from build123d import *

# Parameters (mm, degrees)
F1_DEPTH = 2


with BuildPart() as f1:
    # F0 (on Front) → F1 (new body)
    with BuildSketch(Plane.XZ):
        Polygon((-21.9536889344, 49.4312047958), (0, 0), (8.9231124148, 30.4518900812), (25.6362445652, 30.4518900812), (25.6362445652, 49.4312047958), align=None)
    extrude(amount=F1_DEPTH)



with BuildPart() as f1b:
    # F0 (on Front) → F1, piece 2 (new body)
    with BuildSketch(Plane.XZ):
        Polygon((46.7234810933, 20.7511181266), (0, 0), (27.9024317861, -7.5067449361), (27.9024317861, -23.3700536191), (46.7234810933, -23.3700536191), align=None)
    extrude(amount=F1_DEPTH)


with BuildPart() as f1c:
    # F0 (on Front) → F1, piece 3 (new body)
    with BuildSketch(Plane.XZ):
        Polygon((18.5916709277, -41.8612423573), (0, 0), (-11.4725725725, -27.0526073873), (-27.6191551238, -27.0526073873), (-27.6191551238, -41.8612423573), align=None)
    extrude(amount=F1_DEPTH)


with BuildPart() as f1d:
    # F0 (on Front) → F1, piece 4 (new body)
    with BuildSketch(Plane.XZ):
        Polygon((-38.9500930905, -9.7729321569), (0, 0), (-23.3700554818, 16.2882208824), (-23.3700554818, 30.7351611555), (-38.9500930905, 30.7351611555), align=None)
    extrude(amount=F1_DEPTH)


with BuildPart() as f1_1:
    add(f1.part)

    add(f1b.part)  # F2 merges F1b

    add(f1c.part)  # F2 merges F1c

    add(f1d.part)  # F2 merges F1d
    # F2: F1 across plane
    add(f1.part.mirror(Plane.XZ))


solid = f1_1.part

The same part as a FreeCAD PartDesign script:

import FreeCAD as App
import Part
import Sketcher
Q = App.Units.Quantity


def add_polygon(sketch, points):
    """Adds a closed chain of lines whose ends are joined by coincident constraints."""
    first, n = sketch.GeometryCount, len(points)
    for a, b in zip(points, points[1:] + points[:1]):
        sketch.addGeometry(Part.LineSegment(App.Vector(*a, 0), App.Vector(*b, 0)), False)
    for i in range(n):
        sketch.addConstraint(Sketcher.Constraint("Coincident", first + i, 2, first + (i + 1) % n, 1))

doc = App.newDocument("Part")
body = doc.addObject("PartDesign::Body", "Body")

# Sketch on XZ plane
sketch1 = body.newObject("Sketcher::SketchObject", "Sketch")
sketch1.AttachmentSupport = (doc.getObject("XZ_Plane"), [""])
sketch1.MapMode = "FlatFace"
add_polygon(sketch1, [(-21.953689, 49.431205), (0, 0), (8.923112, 30.45189), (25.636245, 30.45189), (25.636245, 49.431205)])  # lines 0-4
sketch1.addConstraint(Sketcher.Constraint("Horizontal", 2))
sketch1.addConstraint(Sketcher.Constraint("Vertical", 3))
sketch1.addConstraint(Sketcher.Constraint("Horizontal", 4))
sketch1.addConstraint(Sketcher.Constraint("Coincident", 0, 2, -1, 1))
sketch1.addConstraint(Sketcher.Constraint("DistanceX", 4, 2, 1, 2, Q("30.876801 mm")))
sketch1.addConstraint(Sketcher.Constraint("Distance", 1, Q("31.732311 mm")))
sketch1.addConstraint(Sketcher.Constraint("DistanceX", 2, 1, 2, 2, Q("16.713132 mm")))
sketch1.addConstraint(Sketcher.Constraint("DistanceY", 3, 1, 3, 2, Q("18.979315 mm")))
sketch1.addConstraint(Sketcher.Constraint("DistanceY", -1, 1, 1, 2, Q("30.45189 mm")))
pad1 = body.newObject("PartDesign::Pad", "Pad")
pad1.Profile = sketch1
pad1.Length = 2
body2 = doc.addObject("PartDesign::Body", "Body001")

# Sketch on XZ plane
sketch2 = body2.newObject("Sketcher::SketchObject", "Sketch001")
sketch2.AttachmentSupport = (doc.getObject("XZ_Plane001"), [""])
sketch2.MapMode = "FlatFace"
add_polygon(sketch2, [(46.723481, 20.751118), (0, 0), (27.902432, -7.506745), (27.902432, -23.370054), (46.723481, -23.370054)])  # lines 0-4
sketch2.addConstraint(Sketcher.Constraint("Vertical", 2))
sketch2.addConstraint(Sketcher.Constraint("Horizontal", 3))
sketch2.addConstraint(Sketcher.Constraint("Vertical", 4))
sketch2.addConstraint(Sketcher.Constraint("Coincident", 0, 2, -1, 1))
sketch2.addConstraint(Sketcher.Constraint("DistanceX", 3, 1, 3, 2, Q("18.821049 mm")))
sketch2.addConstraint(Sketcher.Constraint("DistanceY", 2, 2, 2, 1, Q("15.863309 mm")))
sketch2.addConstraint(Sketcher.Constraint("DistanceY", 4, 1, 4, 2, Q("44.121172 mm")))
sketch2.addConstraint(Sketcher.Constraint("DistanceX", -1, 1, 1, 2, Q("27.902432 mm")))
sketch2.addConstraint(Sketcher.Constraint("DistanceY", -1, 1, 4, 2, Q("20.751118 mm")))
pad2 = body2.newObject("PartDesign::Pad", "Pad001")
pad2.Profile = sketch2
pad2.Length = 2
body3 = doc.addObject("PartDesign::Body", "Body002")

# Sketch on XZ plane
sketch3 = body3.newObject("Sketcher::SketchObject", "Sketch002")
sketch3.AttachmentSupport = (doc.getObject("XZ_Plane002"), [""])
sketch3.MapMode = "FlatFace"
add_polygon(sketch3, [(18.591671, -41.861242), (0, 0), (-11.472573, -27.052607), (-27.619155, -27.052607), (-27.619155, -41.861242)])  # lines 0-4
sketch3.addConstraint(Sketcher.Constraint("Horizontal", 2))
sketch3.addConstraint(Sketcher.Constraint("Vertical", 3))
sketch3.addConstraint(Sketcher.Constraint("Horizontal", 4))
sketch3.addConstraint(Sketcher.Constraint("Coincident", 0, 2, -1, 1))
sketch3.addConstraint(Sketcher.Constraint("Distance", 0, Q("45.804081 mm")))
sketch3.addConstraint(Sketcher.Constraint("Distance", 1, Q("29.384749 mm")))
sketch3.addConstraint(Sketcher.Constraint("DistanceX", 2, 2, 2, 1, Q("16.146583 mm")))
sketch3.addConstraint(Sketcher.Constraint("DistanceX", 4, 1, 4, 2, Q("46.210826 mm")))
sketch3.addConstraint(Sketcher.Constraint("DistanceY", 3, 2, 3, 1, Q("14.808635 mm")))
pad3 = body3.newObject("PartDesign::Pad", "Pad002")
pad3.Profile = sketch3
pad3.Length = 2
body4 = doc.addObject("PartDesign::Body", "Body003")

# Sketch on XZ plane
sketch4 = body4.newObject("Sketcher::SketchObject", "Sketch003")
sketch4.AttachmentSupport = (doc.getObject("XZ_Plane003"), [""])
sketch4.MapMode = "FlatFace"
add_polygon(sketch4, [(-38.950093, -9.772932), (0, 0), (-23.370055, 16.288221), (-23.370055, 30.735161), (-38.950093, 30.735161)])  # lines 0-4
sketch4.addConstraint(Sketcher.Constraint("Vertical", 2))
sketch4.addConstraint(Sketcher.Constraint("Horizontal", 3))
sketch4.addConstraint(Sketcher.Constraint("Vertical", 4))
sketch4.addConstraint(Sketcher.Constraint("Coincident", 0, 2, -1, 1))
sketch4.addConstraint(Sketcher.Constraint("DistanceY", 2, 1, 2, 2, Q("14.44694 mm")))
sketch4.addConstraint(Sketcher.Constraint("Distance", 0, Q("40.15744 mm")))
sketch4.addConstraint(Sketcher.Constraint("DistanceX", 3, 2, 3, 1, Q("15.580038 mm")))
sketch4.addConstraint(Sketcher.Constraint("DistanceY", 4, 2, 4, 1, Q("40.508093 mm")))
sketch4.addConstraint(Sketcher.Constraint("DistanceY", -1, 1, 1, 2, Q("16.288221 mm")))
pad4 = body4.newObject("PartDesign::Pad", "Pad003")
pad4.Profile = sketch4
pad4.Length = 2
body5 = doc.addObject("PartDesign::Body", "Body004")
body5.AllowCompound = True
doc.recompute()

body5.BaseFeature = body
doc.recompute()

boolean = body5.newObject("PartDesign::Boolean", "Boolean")
boolean.Type = "Fuse"
boolean.addObjects([body2])
doc.recompute()

boolean2 = body5.newObject("PartDesign::Boolean", "Boolean001")
boolean2.Type = "Fuse"
boolean2.addObjects([body3])
doc.recompute()

boolean3 = body5.newObject("PartDesign::Boolean", "Boolean002")
boolean3.Type = "Fuse"
boolean3.addObjects([body4])
doc.recompute()

mirroring = doc.addObject("Part::Mirroring", "Mirroring")
mirroring.Source = body
mirroring.Base = App.Vector(0, 0, 0)
mirroring.Normal = App.Vector(0, -1, 0)
body6 = doc.addObject("PartDesign::Body", "Body005")
body6.BaseFeature = mirroring
boolean4 = body5.newObject("PartDesign::Boolean", "Boolean003")
boolean4.Type = "Fuse"
boolean4.addObjects([body6])
doc.recompute()
mirroring.Visibility = False

doc.recompute()
